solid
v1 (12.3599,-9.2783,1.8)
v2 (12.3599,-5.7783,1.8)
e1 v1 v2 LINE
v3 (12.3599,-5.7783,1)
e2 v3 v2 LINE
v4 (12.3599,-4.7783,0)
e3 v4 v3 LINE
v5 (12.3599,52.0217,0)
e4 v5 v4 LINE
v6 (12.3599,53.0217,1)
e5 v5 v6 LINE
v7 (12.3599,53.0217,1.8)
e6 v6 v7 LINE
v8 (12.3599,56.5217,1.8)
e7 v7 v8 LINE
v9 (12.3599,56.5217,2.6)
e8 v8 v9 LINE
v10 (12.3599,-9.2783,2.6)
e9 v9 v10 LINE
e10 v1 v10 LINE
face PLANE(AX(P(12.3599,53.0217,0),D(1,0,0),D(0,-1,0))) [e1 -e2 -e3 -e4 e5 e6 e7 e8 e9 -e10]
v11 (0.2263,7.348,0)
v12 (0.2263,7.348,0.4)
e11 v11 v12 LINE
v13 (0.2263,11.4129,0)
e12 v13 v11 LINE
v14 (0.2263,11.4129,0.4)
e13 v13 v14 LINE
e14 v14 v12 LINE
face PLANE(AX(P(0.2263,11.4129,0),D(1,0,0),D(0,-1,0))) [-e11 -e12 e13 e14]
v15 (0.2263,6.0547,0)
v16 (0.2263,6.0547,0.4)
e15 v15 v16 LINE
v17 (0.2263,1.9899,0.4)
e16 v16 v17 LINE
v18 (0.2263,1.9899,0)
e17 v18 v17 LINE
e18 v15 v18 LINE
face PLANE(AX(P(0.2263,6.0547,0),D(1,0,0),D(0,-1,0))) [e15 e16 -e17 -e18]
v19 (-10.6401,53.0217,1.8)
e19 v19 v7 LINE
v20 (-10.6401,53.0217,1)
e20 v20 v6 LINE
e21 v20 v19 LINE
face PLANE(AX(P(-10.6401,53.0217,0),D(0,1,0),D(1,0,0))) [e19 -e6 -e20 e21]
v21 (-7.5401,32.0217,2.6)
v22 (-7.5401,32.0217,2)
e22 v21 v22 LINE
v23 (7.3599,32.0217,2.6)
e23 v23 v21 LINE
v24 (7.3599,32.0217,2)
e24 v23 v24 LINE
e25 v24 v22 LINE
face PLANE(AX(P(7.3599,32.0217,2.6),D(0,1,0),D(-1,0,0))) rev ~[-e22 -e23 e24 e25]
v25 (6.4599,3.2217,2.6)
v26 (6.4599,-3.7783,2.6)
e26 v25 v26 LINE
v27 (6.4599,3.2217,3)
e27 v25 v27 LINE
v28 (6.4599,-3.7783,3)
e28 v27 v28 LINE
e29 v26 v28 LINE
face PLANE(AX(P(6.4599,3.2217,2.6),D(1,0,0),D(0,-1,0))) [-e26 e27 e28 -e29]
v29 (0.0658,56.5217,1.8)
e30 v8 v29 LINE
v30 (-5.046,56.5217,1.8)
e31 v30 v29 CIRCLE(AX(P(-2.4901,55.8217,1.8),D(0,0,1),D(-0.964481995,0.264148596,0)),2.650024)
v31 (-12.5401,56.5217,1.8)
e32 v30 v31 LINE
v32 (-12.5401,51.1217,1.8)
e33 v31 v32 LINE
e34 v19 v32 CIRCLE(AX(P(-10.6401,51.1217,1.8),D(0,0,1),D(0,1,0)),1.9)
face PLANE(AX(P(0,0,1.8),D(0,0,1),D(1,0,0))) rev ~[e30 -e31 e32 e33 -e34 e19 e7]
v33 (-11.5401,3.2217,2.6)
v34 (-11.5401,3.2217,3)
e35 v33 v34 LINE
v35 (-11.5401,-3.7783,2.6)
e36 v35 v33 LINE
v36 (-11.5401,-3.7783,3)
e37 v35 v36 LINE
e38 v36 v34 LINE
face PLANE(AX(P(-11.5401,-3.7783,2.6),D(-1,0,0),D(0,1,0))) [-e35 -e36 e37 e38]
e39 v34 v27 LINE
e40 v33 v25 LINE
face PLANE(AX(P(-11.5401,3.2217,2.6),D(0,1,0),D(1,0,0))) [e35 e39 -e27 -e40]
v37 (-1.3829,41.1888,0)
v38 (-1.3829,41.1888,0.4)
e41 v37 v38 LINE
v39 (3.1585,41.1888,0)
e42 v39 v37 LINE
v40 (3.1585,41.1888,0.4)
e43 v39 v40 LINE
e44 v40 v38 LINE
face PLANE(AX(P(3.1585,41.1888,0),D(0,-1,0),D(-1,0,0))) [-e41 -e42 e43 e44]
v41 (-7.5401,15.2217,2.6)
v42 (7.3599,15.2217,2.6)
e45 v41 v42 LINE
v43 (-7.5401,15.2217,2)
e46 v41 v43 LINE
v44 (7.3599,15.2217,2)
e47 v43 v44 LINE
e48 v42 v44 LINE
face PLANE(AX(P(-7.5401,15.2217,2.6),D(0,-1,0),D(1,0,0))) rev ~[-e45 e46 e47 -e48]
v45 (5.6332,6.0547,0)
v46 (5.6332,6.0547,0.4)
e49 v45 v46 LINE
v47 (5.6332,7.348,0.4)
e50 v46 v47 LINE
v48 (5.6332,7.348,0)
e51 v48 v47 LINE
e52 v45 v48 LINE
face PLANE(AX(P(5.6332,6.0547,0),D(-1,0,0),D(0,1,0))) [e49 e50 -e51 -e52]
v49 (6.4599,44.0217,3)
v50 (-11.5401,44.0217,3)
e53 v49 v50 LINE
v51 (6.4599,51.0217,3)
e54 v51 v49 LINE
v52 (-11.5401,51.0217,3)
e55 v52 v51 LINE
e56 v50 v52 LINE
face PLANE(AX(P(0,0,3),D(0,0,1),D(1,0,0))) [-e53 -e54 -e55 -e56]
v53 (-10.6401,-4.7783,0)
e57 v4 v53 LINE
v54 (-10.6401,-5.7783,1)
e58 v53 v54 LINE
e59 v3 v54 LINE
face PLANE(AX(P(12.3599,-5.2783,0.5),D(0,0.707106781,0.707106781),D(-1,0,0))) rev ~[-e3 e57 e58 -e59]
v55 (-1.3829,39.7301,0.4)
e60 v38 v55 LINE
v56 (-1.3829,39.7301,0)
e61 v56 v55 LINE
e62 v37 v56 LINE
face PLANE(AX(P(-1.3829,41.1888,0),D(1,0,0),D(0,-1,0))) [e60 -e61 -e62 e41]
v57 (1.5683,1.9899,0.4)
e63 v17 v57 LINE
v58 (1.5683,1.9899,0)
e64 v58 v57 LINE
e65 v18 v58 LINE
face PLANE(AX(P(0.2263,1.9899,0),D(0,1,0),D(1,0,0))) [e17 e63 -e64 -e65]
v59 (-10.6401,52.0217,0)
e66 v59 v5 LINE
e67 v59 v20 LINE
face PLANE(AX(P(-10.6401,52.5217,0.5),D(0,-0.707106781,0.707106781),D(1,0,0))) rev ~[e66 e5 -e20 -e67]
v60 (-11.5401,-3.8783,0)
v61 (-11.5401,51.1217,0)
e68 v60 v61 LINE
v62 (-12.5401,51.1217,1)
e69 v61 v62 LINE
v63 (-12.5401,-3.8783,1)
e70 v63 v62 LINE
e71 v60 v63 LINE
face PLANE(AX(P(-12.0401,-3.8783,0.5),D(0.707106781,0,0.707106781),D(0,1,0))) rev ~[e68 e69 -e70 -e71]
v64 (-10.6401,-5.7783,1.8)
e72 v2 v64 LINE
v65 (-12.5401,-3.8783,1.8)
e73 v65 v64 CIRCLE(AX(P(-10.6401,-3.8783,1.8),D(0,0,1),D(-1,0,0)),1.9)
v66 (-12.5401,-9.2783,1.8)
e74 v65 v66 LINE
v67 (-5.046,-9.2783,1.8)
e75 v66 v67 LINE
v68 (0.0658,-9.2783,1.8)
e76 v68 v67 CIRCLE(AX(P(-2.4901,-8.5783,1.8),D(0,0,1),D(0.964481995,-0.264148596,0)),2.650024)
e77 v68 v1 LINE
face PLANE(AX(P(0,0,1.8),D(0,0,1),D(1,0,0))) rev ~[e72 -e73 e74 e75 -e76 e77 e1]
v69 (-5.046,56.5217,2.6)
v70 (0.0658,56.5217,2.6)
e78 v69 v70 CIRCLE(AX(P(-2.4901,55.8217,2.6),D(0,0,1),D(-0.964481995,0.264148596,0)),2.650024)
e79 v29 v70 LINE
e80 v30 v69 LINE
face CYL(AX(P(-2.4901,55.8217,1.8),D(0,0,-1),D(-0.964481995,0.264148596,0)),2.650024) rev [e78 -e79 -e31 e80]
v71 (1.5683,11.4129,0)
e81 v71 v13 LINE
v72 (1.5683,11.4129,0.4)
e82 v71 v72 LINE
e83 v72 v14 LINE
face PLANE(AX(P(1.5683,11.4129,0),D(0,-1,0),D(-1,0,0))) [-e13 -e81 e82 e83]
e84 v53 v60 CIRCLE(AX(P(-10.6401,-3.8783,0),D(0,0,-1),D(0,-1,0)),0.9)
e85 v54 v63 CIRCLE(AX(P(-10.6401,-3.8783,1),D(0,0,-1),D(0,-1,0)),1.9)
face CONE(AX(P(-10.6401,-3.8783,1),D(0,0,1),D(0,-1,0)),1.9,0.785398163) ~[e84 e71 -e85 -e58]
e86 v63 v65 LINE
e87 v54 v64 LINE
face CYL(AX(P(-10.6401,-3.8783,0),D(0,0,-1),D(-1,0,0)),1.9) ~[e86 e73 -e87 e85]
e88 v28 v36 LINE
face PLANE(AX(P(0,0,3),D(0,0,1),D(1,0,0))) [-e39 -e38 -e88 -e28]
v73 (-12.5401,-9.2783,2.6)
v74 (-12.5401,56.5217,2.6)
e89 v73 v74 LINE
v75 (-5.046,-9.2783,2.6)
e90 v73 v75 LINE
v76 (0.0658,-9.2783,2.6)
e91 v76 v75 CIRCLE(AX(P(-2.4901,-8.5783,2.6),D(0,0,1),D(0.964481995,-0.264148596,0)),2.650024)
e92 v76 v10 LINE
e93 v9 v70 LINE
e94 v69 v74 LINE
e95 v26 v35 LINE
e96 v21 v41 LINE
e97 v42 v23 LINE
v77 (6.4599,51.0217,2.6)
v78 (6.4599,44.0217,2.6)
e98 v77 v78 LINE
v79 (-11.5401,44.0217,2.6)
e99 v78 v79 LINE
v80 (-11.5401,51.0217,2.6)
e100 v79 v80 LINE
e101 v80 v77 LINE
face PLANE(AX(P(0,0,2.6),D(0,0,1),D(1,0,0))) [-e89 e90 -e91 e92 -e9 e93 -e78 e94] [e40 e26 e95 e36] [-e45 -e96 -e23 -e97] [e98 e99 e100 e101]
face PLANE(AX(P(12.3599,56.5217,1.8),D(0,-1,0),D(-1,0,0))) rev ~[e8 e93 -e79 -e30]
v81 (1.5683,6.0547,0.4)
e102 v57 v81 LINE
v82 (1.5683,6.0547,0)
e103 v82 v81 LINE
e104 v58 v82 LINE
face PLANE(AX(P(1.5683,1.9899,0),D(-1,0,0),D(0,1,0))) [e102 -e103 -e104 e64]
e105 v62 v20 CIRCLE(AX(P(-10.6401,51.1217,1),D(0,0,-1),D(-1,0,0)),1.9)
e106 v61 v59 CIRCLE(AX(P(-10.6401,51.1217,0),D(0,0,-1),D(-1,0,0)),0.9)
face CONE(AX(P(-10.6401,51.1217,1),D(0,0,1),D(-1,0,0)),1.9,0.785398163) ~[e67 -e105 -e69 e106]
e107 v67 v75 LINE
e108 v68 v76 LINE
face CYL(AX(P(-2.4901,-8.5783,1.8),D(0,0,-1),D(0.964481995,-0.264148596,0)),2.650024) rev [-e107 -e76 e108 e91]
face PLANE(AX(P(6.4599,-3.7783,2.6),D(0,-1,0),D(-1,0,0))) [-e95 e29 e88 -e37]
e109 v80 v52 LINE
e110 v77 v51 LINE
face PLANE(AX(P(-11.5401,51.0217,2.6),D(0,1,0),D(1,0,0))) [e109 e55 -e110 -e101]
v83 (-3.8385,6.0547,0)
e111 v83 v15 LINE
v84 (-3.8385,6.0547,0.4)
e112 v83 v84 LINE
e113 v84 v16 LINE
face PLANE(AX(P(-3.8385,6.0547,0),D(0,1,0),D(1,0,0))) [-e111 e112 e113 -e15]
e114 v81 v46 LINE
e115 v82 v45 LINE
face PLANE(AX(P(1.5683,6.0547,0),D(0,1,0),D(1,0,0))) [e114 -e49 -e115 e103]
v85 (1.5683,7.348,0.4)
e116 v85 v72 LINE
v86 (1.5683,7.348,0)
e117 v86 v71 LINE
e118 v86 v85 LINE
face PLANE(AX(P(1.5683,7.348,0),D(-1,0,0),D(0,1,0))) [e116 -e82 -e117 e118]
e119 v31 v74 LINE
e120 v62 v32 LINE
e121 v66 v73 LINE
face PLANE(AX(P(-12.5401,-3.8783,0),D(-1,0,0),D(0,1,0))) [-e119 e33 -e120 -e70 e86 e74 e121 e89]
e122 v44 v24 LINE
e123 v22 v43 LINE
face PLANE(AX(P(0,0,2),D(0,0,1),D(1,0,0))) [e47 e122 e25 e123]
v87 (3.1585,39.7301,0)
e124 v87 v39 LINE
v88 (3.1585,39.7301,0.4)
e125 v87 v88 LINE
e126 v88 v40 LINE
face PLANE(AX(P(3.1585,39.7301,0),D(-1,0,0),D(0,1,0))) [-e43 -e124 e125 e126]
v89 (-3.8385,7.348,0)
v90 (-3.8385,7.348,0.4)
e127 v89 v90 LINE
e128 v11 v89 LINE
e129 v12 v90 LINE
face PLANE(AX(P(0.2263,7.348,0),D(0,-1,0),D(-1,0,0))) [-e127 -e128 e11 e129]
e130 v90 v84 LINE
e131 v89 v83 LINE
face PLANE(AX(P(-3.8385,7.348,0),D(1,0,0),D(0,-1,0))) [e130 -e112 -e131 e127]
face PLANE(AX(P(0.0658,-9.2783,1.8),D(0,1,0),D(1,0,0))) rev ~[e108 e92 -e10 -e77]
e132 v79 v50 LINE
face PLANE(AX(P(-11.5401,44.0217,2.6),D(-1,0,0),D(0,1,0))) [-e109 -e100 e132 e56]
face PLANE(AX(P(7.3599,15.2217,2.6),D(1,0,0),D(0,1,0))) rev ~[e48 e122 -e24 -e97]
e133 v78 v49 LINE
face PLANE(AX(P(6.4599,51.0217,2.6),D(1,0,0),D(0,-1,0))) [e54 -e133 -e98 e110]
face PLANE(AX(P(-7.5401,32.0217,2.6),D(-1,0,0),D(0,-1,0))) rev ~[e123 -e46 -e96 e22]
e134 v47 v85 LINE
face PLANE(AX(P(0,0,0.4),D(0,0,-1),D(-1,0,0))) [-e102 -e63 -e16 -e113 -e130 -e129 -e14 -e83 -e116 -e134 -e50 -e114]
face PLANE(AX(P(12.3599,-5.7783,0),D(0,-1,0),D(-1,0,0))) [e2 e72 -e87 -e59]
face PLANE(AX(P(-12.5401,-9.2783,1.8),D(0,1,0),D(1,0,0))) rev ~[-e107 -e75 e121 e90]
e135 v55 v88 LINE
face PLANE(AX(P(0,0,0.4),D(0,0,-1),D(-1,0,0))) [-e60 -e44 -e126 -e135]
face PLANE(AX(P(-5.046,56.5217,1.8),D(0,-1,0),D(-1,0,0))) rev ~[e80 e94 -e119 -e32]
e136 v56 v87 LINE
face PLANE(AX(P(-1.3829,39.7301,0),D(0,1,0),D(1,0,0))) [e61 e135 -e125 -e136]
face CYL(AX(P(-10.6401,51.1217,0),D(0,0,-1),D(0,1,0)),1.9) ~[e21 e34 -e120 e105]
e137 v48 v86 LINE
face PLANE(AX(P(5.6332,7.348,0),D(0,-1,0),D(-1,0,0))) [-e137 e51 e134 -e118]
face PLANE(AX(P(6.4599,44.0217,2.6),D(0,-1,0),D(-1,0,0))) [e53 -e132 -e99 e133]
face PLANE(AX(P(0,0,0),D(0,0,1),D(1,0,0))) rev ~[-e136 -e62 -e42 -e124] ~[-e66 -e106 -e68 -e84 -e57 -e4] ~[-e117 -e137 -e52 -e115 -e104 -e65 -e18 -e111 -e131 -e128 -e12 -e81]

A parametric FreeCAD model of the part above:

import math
import FreeCAD as App
import Part
import Sketcher


def edges_at(feature, points):
    """Names of the edges that pass closest to the given points."""
    edges = feature.Shape.Edges
    near = lambda p: min(range(len(edges)), key=lambda i: edges[i].distToShape(Part.Vertex(*p))[0])
    return sorted({f"Edge{near(p) + 1}" for p in points})


def add_polygon(sketch, points):
    """Adds a closed chain of lines whose ends are joined by coincident constraints."""
    first, n = sketch.GeometryCount, len(points)
    for a, b in zip(points, points[1:] + points[:1]):
        sketch.addGeometry(Part.LineSegment(App.Vector(*a, 0), App.Vector(*b, 0)), False)
    for i in range(n):
        sketch.addConstraint(Sketcher.Constraint("Coincident", first + i, 2, first + (i + 1) % n, 1))

doc = App.newDocument("Part")
body = doc.addObject("PartDesign::Body", "Body")

# Sketch on XY plane
sketch1 = body.newObject("Sketcher::SketchObject", "Sketch")
sketch1.AttachmentSupport = (doc.getObject("XY_Plane"), [""])
sketch1.MapMode = "FlatFace"
sketch1.addGeometry(Part.LineSegment(App.Vector(-10.6401, -5.7783, 0), App.Vector(12.3599, -5.7783, 0)), False)
sketch1.addGeometry(Part.LineSegment(App.Vector(12.3599, -5.7783, 0), App.Vector(12.3599, 53.0217, 0)), False)
sketch1.addGeometry(Part.LineSegment(App.Vector(12.3599, 53.0217, 0), App.Vector(-10.6401, 53.0217, 0)), False)
sketch1.addGeometry(Part.ArcOfCircle(Part.Circle(App.Vector(-10.6401, 51.1217, 0), App.Vector(0, 0, 1), 1.9), math.radians(90), math.radians(180)), False)
sketch1.addGeometry(Part.LineSegment(App.Vector(-12.5401, 51.1217, 0), App.Vector(-12.5401, -3.8783, 0)), False)
sketch1.addGeometry(Part.ArcOfCircle(Part.Circle(App.Vector(-10.6401, -3.8783, 0), App.Vector(0, 0, 1), 1.9), math.radians(180), math.radians(270)), False)
sketch1.addConstraint(Sketcher.Constraint("Coincident", 0, 2, 1, 1))
sketch1.addConstraint(Sketcher.Constraint("Coincident", 1, 2, 2, 1))
sketch1.addConstraint(Sketcher.Constraint("Tangent", 2, 2, 3, 1))
sketch1.addConstraint(Sketcher.Constraint("Tangent", 3, 2, 4, 1))
sketch1.addConstraint(Sketcher.Constraint("Tangent", 4, 2, 5, 1))
sketch1.addConstraint(Sketcher.Constraint("Tangent", 5, 2, 0, 1))
sketch1.addConstraint(Sketcher.Constraint("Horizontal", 0))
sketch1.addConstraint(Sketcher.Constraint("Vertical", 1))
sketch1.addConstraint(Sketcher.Constraint("Horizontal", 2))
sketch1.addConstraint(Sketcher.Constraint("Vertical", 4))
sketch1.addConstraint(Sketcher.Constraint("Equal", 3, 5))
sketch1.addConstraint(Sketcher.Constraint("Radius", 3, 1.9))
sketch1.addConstraint(Sketcher.Constraint("DistanceX", 3, 2, 1, 2, 24.9))
sketch1.addConstraint(Sketcher.Constraint("DistanceY", 4, 2, 4, 1, 55.0))
sketch1.addConstraint(Sketcher.Constraint("DistanceX", 3, 3, -1, 1, 10.64))
sketch1.addConstraint(Sketcher.Constraint("DistanceY", -1, 1, 3, 3, 51.1217))
pad1 = body.newObject("PartDesign::Pad", "Pad")
pad1.Profile = sketch1
pad1.Length = 1.8

# Sketch on XY plane
sketch2 = body.newObject("Sketcher::SketchObject", "Sketch001")
sketch2.AttachmentSupport = (doc.getObject("XY_Plane"), [""])
sketch2.MapMode = "FlatFace"
sketch2.AttachmentOffset = App.Placement(App.Vector(0, 0, 1.8), App.Rotation())
sketch2.addGeometry(Part.LineSegment(App.Vector(12.3599, -9.2783, 0), App.Vector(12.3599, 56.5217, 0)), False)
sketch2.addGeometry(Part.LineSegment(App.Vector(12.3599, 56.5217, 0), App.Vector(0.0658, 56.5217, 0)), False)
sketch2.addGeometry(Part.ArcOfCircle(Part.Circle(App.Vector(-2.4901, 55.8217, 0), App.Vector(0, 0, 1), 2.650024), math.radians(164.683632), math.radians(375.316368)), False)
sketch2.addGeometry(Part.LineSegment(App.Vector(-5.046, 56.5217, 0), App.Vector(-12.5401, 56.5217, 0)), False)
sketch2.addGeometry(Part.LineSegment(App.Vector(-12.5401, 56.5217, 0), App.Vector(-12.5401, -9.2783, 0)), False)
sketch2.addGeometry(Part.LineSegment(App.Vector(-12.5401, -9.2783, 0), App.Vector(-5.046, -9.2783, 0)), False)
sketch2.addGeometry(Part.ArcOfCircle(Part.Circle(App.Vector(-2.4901, -8.5783, 0), App.Vector(0, 0, 1), 2.650024), math.radians(-15.316368), math.radians(195.316368)), False)
sketch2.addGeometry(Part.LineSegment(App.Vector(0.0658, -9.2783, 0), App.Vector(12.3599, -9.2783, 0)), False)
sketch2.addConstraint(Sketcher.Constraint("Coincident", 0, 2, 1, 1))
sketch2.addConstraint(Sketcher.Constraint("Coincident", 1, 2, 2, 2))
sketch2.addConstraint(Sketcher.Constraint("Coincident", 2, 1, 3, 1))
sketch2.addConstraint(Sketcher.Constraint("Coincident", 3, 2, 4, 1))
sketch2.addConstraint(Sketcher.Constraint("Coincident", 4, 2, 5, 1))
sketch2.addConstraint(Sketcher.Constraint("Coincident", 5, 2, 6, 2))
sketch2.addConstraint(Sketcher.Constraint("Coincident", 6, 1, 7, 1))
sketch2.addConstraint(Sketcher.Constraint("Coincident", 7, 2, 0, 1))
sketch2.addConstraint(Sketcher.Constraint("Vertical", 0))
sketch2.addConstraint(Sketcher.Constraint("Horizontal", 1))
sketch2.addConstraint(Sketcher.Constraint("Horizontal", 3))
sketch2.addConstraint(Sketcher.Constraint("Vertical", 4))
sketch2.addConstraint(Sketcher.Constraint("Horizontal", 5))
sketch2.addConstraint(Sketcher.Constraint("Horizontal", 7))
sketch2.addConstraint(Sketcher.Constraint("Equal", 2, 6))
sketch2.addConstraint(Sketcher.Constraint("Horizontal", 1, 2, 2, 1))
sketch2.addConstraint(Sketcher.Constraint("Horizontal", 5, 2, 6, 1))
sketch2.addConstraint(Sketcher.Constraint("Vertical", 2, 3, 6, 3))
sketch2.addConstraint(Sketcher.Constraint("Vertical", 2, 1, 5, 2))
sketch2.addConstraint(Sketcher.Constraint("Radius", 2, 2.65))
sketch2.addConstraint(Sketcher.Constraint("DistanceY", 0, 1, 0, 2, 65.8))
sketch2.addConstraint(Sketcher.Constraint("DistanceY", 6, 3, 2, 3, 64.4))
sketch2.addConstraint(Sketcher.Constraint("DistanceX", 3, 2, 0, 2, 24.9))
sketch2.addConstraint(Sketcher.Constraint("DistanceX", 1, 2, 1, 1, 12.294))
sketch2.addConstraint(Sketcher.Constraint("DistanceX", 2, 3, -1, 1, 2.49))
sketch2.addConstraint(Sketcher.Constraint("DistanceY", -1, 1, 2, 3, 55.8217))
pad2 = body.newObject("PartDesign::Pad", "Pad001")
pad2.Profile = sketch2
pad2.Length = 0.8

# Sketch on XY plane
sketch3 = body.newObject("Sketcher::SketchObject", "Sketch002")
sketch3.AttachmentSupport = (doc.getObject("XY_Plane"), [""])
sketch3.MapMode = "FlatFace"
sketch3.AttachmentOffset = App.Placement(App.Vector(0, 0, 2.6), App.Rotation())
add_polygon(sketch3, [(6.4599, 51.0217), (-11.5401, 51.0217), (-11.5401, 44.0217), (6.4599, 44.0217)])  # lines 0-3
add_polygon(sketch3, [(6.4599, 3.2217), (-11.5401, 3.2217), (-11.5401, -3.7783), (6.4599, -3.7783)])  # lines 4-7
sketch3.addConstraint(Sketcher.Constraint("Horizontal", 0))
sketch3.addConstraint(Sketcher.Constraint("Vertical", 1))
sketch3.addConstraint(Sketcher.Constraint("Horizontal", 2))
sketch3.addConstraint(Sketcher.Constraint("Vertical", 3))
sketch3.addConstraint(Sketcher.Constraint("Horizontal", 4))
sketch3.addConstraint(Sketcher.Constraint("Vertical", 5))
sketch3.addConstraint(Sketcher.Constraint("Horizontal", 6))
sketch3.addConstraint(Sketcher.Constraint("Vertical", 7))
sketch3.addConstraint(Sketcher.Constraint("Vertical", 1, 2, 4, 2))
sketch3.addConstraint(Sketcher.Constraint("Vertical", 3, 2, 6, 2))
sketch3.addConstraint(Sketcher.Constraint("Equal", 3, 5))
sketch3.addConstraint(Sketcher.Constraint("DistanceX", 0, 2, 0, 1, 18.0))
sketch3.addConstraint(Sketcher.Constraint("DistanceY", 1, 2, 1, 1, 7.0))
sketch3.addConstraint(Sketcher.Constraint("DistanceY", 4, 2, 1, 2, 40.8))
sketch3.addConstraint(Sketcher.Constraint("DistanceX", 0, 2, -1, 1, 11.54))
sketch3.addConstraint(Sketcher.Constraint("DistanceY", -1, 1, 0, 2, 51.0217))
pad3 = body.newObject("PartDesign::Pad", "Pad002")
pad3.Profile = sketch3
pad3.Length = 0.4
doc.recompute()

chamfer = body.newObject("PartDesign::Chamfer", "Chamfer")
chamfer.Base = (pad3, edges_at(pad3, [
    (0.86, 53.022, 0),
    (-11.984, 52.465, 0),
    (-12.54, 23.622, 0),
    (-11.984, -5.222, 0),
    (0.86, -5.778, 0),
]))
chamfer.Size = 1

# Sketch on XY plane
sketch4 = body.newObject("Sketcher::SketchObject", "Sketch003")
sketch4.AttachmentSupport = (doc.getObject("XY_Plane"), [""])
sketch4.MapMode = "FlatFace"
add_polygon(sketch4, [(0.2263, 6.0547), (-3.8385, 6.0547), (-3.8385, 7.348), (0.2263, 7.348), (0.2263, 11.4129), (1.5683, 11.4129), (1.5683, 7.348), (5.6332, 7.348), (5.6332, 6.0547), (1.5683, 6.0547), (1.5683, 1.9899), (0.2263, 1.9899)])  # lines 0-11
add_polygon(sketch4, [(3.1585, 39.7301), (-1.3829, 39.7301), (-1.3829, 41.1888), (3.1585, 41.1888)])  # lines 12-15
sketch4.addConstraint(Sketcher.Constraint("Horizontal", 0))
sketch4.addConstraint(Sketcher.Constraint("Vertical", 1))
sketch4.addConstraint(Sketcher.Constraint("Horizontal", 2))
sketch4.addConstraint(Sketcher.Constraint("Vertical", 3))
sketch4.addConstraint(Sketcher.Constraint("Horizontal", 4))
sketch4.addConstraint(Sketcher.Constraint("Vertical", 5))
sketch4.addConstraint(Sketcher.Constraint("Horizontal", 6))
sketch4.addConstraint(Sketcher.Constraint("Vertical", 7))
sketch4.addConstraint(Sketcher.Constraint("Horizontal", 8))
sketch4.addConstraint(Sketcher.Constraint("Vertical", 9))
sketch4.addConstraint(Sketcher.Constraint("Horizontal", 10))
sketch4.addConstraint(Sketcher.Constraint("Vertical", 11))
sketch4.addConstraint(Sketcher.Constraint("Horizontal", 12))
sketch4.addConstraint(Sketcher.Constraint("Vertical", 13))
sketch4.addConstraint(Sketcher.Constraint("Horizontal", 14))
sketch4.addConstraint(Sketcher.Constraint("Vertical", 15))
sketch4.addConstraint(Sketcher.Constraint("Horizontal", 2, 2, 5, 2))
sketch4.addConstraint(Sketcher.Constraint("Horizontal", 0, 2, 7, 2))
sketch4.addConstraint(Sketcher.Constraint("Vertical", 5, 2, 8, 2))
sketch4.addConstraint(Sketcher.Constraint("Vertical", 3, 2, 10, 2))
sketch4.addConstraint(Sketcher.Constraint("Equal", 2, 6))
sketch4.addConstraint(Sketcher.Constraint("Equal", 8, 3))
sketch4.addConstraint(Sketcher.Constraint("Equal", 5, 9))
sketch4.addConstraint(Sketcher.Constraint("DistanceX", 4, 1, 4, 2, 1.342))
sketch4.addConstraint(Sketcher.Constraint("DistanceX", 6, 1, 6, 2, 4.065))
sketch4.addConstraint(Sketcher.Constraint("DistanceY", -1, 1, 9, 2, 1.99))
sketch4.addConstraint(Sketcher.Constraint("DistanceY", -1, 1, 12, 2, 39.73))
sketch4.addConstraint(Sketcher.Constraint("DistanceX", 12, 2, 12, 1, 4.5414))
sketch4.addConstraint(Sketcher.Constraint("DistanceY", 1, 1, 1, 2, 1.2933))
sketch4.addConstraint(Sketcher.Constraint("DistanceY", 13, 1, 13, 2, 1.4587))
sketch4.addConstraint(Sketcher.Constraint("DistanceX", 12, 2, -1, 1, 1.383))
sketch4.addConstraint(Sketcher.Constraint("DistanceX", 0, 2, -1, 1, 3.8385))
pocket1 = body.newObject("PartDesign::Pocket", "Pocket")
pocket1.Profile = sketch4
pocket1.Length = 0.4
pocket1.Reversed = True

# Sketch on XY plane
sketch5 = body.newObject("Sketcher::SketchObject", "Sketch004")
sketch5.AttachmentSupport = (doc.getObject("XY_Plane"), [""])
sketch5.MapMode = "FlatFace"
sketch5.AttachmentOffset = App.Placement(App.Vector(0, 0, 2.6), App.Rotation())
add_polygon(sketch5, [(7.3599, 15.2217), (7.3599, 32.0217), (-7.5401, 32.0217), (-7.5401, 15.2217)])  # lines 0-3
sketch5.addConstraint(Sketcher.Constraint("Vertical", 0))
sketch5.addConstraint(Sketcher.Constraint("Horizontal", 1))
sketch5.addConstraint(Sketcher.Constraint("Vertical", 2))
sketch5.addConstraint(Sketcher.Constraint("Horizontal", 3))
sketch5.addConstraint(Sketcher.Constraint("DistanceX", 1, 2, 1, 1, 14.9))
sketch5.addConstraint(Sketcher.Constraint("DistanceY", 0, 1, 0, 2, 16.8))
sketch5.addConstraint(Sketcher.Constraint("DistanceX", -1, 1, 0, 2, 7.36))
sketch5.addConstraint(Sketcher.Constraint("DistanceY", -1, 1, 0, 2, 32.0217))
pocket2 = body.newObject("PartDesign::Pocket", "Pocket001")
pocket2.Profile = sketch5
pocket2.Length = 0.6

doc.recompute()
